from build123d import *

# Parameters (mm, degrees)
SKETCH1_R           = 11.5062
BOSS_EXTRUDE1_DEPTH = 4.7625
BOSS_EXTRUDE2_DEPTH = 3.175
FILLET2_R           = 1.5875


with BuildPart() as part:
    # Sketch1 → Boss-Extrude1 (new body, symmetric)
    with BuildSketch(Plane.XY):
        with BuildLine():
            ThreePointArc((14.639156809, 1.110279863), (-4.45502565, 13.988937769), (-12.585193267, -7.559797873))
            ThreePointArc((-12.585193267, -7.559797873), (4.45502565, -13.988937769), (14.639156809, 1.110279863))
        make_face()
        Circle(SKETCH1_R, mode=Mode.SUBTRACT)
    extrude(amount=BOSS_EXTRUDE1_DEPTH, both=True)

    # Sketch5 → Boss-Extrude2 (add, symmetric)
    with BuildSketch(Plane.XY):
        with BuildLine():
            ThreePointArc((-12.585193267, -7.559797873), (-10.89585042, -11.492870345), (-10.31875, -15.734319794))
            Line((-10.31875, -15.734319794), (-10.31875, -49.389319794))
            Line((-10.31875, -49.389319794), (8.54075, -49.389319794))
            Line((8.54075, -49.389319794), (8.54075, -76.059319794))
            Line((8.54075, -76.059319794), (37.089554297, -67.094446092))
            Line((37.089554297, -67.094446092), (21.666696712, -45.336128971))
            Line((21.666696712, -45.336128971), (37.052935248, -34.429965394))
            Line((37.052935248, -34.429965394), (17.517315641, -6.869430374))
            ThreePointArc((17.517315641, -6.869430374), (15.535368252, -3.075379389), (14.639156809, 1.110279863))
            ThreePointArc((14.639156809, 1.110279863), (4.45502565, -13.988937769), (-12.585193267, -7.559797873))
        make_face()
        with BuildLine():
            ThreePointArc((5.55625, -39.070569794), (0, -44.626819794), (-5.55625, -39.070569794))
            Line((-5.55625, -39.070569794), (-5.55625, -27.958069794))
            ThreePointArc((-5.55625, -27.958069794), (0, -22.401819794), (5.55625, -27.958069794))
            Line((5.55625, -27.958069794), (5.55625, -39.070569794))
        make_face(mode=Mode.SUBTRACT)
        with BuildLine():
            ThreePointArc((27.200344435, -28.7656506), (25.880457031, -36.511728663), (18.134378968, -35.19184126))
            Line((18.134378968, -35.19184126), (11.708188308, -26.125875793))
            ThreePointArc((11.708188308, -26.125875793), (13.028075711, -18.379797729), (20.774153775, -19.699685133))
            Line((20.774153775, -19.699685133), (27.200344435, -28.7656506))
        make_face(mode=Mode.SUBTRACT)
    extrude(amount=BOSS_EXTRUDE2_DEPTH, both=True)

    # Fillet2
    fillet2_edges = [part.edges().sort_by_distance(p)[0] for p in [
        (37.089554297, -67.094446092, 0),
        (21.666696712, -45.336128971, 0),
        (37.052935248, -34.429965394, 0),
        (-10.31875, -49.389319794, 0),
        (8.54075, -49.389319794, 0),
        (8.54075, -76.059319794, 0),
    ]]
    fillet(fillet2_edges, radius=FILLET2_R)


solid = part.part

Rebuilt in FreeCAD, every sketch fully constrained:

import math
import FreeCAD as App
import Part
import Sketcher

V = App.Vector
Q = App.Units.Quantity


def edges_at(feature, points):
    """Names of the edges that pass closest to the given points."""
    edges = feature.Shape.Edges
    near = lambda p: min(range(len(edges)), key=lambda i: edges[i].distToShape(Part.Vertex(*p))[0])
    return sorted({f"Edge{near(p) + 1}" for p in points})

doc = App.newDocument("Part")
body = doc.addObject("PartDesign::Body", "Body")

sketch1 = body.newObject("Sketcher::SketchObject", "Sketch")
sketch1.AttachmentSupport = (doc.getObject("XY_Plane"), [""])
sketch1.MapMode = "FlatFace"
sketch1.addGeometry([
    Part.ArcOfCircle(Part.Circle(V(0, 0, 0), V(0, 0, 1), 14.6812), math.radians(4.337189), math.radians(210.992811)),
    Part.ArcOfCircle(Part.Circle(V(0, 0, 0), V(0, 0, 1), 14.6812), math.radians(-149.007189), math.radians(4.337189)),
    Part.Circle(V(0, 0, 0), V(0, 0, 1), 11.5062),
], False)
sketch1.addConstraint([
    Sketcher.Constraint("Tangent", 0, 1, 1, 2),
    Sketcher.Constraint("Coincident", 1, 1, 0, 2),
    Sketcher.Constraint("Coincident", 0, 3, -1, 1),
    Sketcher.Constraint("Coincident", 2, 3, -1, 1),
    Sketcher.Constraint("Diameter", 2, Q("0.906 in")),
    Sketcher.Constraint("Radius", 0, Q("0.578 in")),
    Sketcher.Constraint("DistanceY", -1, 1, 0, 1, Q("1.11028 mm")),
    Sketcher.Constraint("DistanceX", 1, 1, 0, 1, Q("27.22435 mm")),
])
pad1 = body.newObject("PartDesign::Pad", "Pad")
pad1.Profile = sketch1
pad1.Length = Q("0.375 in")
pad1.Midplane = True

sketch2 = body.newObject("Sketcher::SketchObject", "Sketch001")
sketch2.AttachmentSupport = (doc.getObject("XY_Plane"), [""])
sketch2.MapMode = "FlatFace"
sketch2.addGeometry([
    Part.ArcOfCircle(Part.Circle(V(-26.19375, -15.73432, 0), V(0, 0, 1), 15.875), math.radians(0), math.radians(30.992811)),
    Part.LineSegment(V(-10.31875, -15.73432, 0), V(-10.31875, -49.38932, 0)),
    Part.LineSegment(V(-10.31875, -49.38932, 0), V(8.54075, -49.38932, 0)),
    Part.LineSegment(V(8.54075, -49.38932, 0), V(8.54075, -76.05932, 0)),
    Part.LineSegment(V(8.54075, -76.05932, 0), V(37.089554, -67.094446, 0)),
    Part.LineSegment(V(37.089554, -67.094446, 0), V(21.666697, -45.336129, 0)),
    Part.LineSegment(V(21.666697, -45.336129, 0), V(37.052935, -34.429965, 0)),
    Part.LineSegment(V(37.052935, -34.429965, 0), V(17.517316, -6.86943, 0)),
    Part.ArcOfCircle(Part.Circle(V(30.468695, 2.310842, 0), V(0, 0, 1), 15.875), math.radians(-175.662811), math.radians(-144.67)),
    Part.ArcOfCircle(Part.Circle(V(0, 0, 0), V(0, 0, 1), 14.6812), math.radians(-149.007189), math.radians(4.337189)),
    Part.LineSegment(V(5.55625, -27.95807, 0), V(5.55625, -39.07057, 0)),
    Part.ArcOfCircle(Part.Circle(V(0, -39.07057, 0), V(0, 0, 1), 5.55625), math.radians(180), math.radians(360)),
    Part.LineSegment(V(-5.55625, -39.07057, 0), V(-5.55625, -27.95807, 0)),
    Part.ArcOfCircle(Part.Circle(V(0, -27.95807, 0), V(0, 0, 1), 5.55625), math.radians(0), math.radians(180)),
    Part.LineSegment(V(20.774154, -19.699685, 0), V(27.200344, -28.765651, 0)),
    Part.ArcOfCircle(Part.Circle(V(22.667362, -31.978746, 0), V(0, 0, 1), 5.55625), math.radians(-144.67), math.radians(35.33)),
    Part.LineSegment(V(18.134379, -35.191841, 0), V(11.708188, -26.125876, 0)),
    Part.ArcOfCircle(Part.Circle(V(16.241171, -22.91278, 0), V(0, 0, 1), 5.55625), math.radians(35.33), math.radians(215.33)),
], False)
sketch2.addConstraint([
    Sketcher.Constraint("Tangent", 0, 1, 1, 1),
    Sketcher.Constraint("Coincident", 1, 2, 2, 1),
    Sketcher.Constraint("Coincident", 2, 2, 3, 1),
    Sketcher.Constraint("Coincident", 3, 2, 4, 1),
    Sketcher.Constraint("Coincident", 4, 2, 5, 1),
    Sketcher.Constraint("Coincident", 5, 2, 6, 1),
    Sketcher.Constraint("Coincident", 6, 2, 7, 1),
    Sketcher.Constraint("Tangent", 7, 2, 8, 2),
    Sketcher.Constraint("Tangent", 8, 1, 9, 2),
    Sketcher.Constraint("Tangent", 9, 1, 0, 2),
    Sketcher.Constraint("Tangent", 10, 2, 11, 2),
    Sketcher.Constraint("Tangent", 11, 1, 12, 1),
    Sketcher.Constraint("Tangent", 12, 2, 13, 2),
    Sketcher.Constraint("Tangent", 13, 1, 10, 1),
    Sketcher.Constraint("Tangent", 14, 2, 15, 2),
    Sketcher.Constraint("Tangent", 15, 1, 16, 1),
    Sketcher.Constraint("Tangent", 16, 2, 17, 2),
    Sketcher.Constraint("Tangent", 17, 1, 14, 1),
    Sketcher.Constraint("Vertical", 1),
    Sketcher.Constraint("Horizontal", 2),
    Sketcher.Constraint("Vertical", 3),
    Sketcher.Constraint("Vertical", 10),
    Sketcher.Constraint("Vertical", 12),
    Sketcher.Constraint("Coincident", 9, 3, -1, 1),
    Sketcher.Constraint("Equal", 0, 8),
    Sketcher.Constraint("Equal", 13, 15),
    Sketcher.Constraint("Equal", 15, 17),
    Sketcher.Constraint("PointOnObject", 11, 3, -2),
    Sketcher.Constraint("Perpendicular", 5, 6),
    Sketcher.Constraint("Perpendicular", 6, 7),
    Sketcher.Constraint("Parallel", 7, 14),
    Sketcher.Constraint("Radius", 0, Q("0.625 in")),
    Sketcher.Constraint("Radius", 9, Q("0.578 in")),
    Sketcher.Constraint("Radius", 11, Q("0.21875 in")),
    Sketcher.Constraint("DistanceY", 3, 2, 3, 1, Q("1.05 in")),
    Sketcher.Constraint("Distance", 5, Q("1.05 in")),
    Sketcher.Constraint("Distance", 7, Q("1.33 in")),
    Sketcher.Constraint("DistanceY", 1, 2, 1, 1, Q("1.325 in")),
    Sketcher.Constraint("DistanceY", 10, 2, 10, 1, Q("0.4375 in")),
    Sketcher.Constraint("Angle", 5, Q("125.33 deg")),
    Sketcher.Constraint("Distance", 14, Q("0.4375 in")),
    Sketcher.Constraint("DistanceX", 2, 1, 2, 2, Q("0.7425 in")),
    Sketcher.Constraint("DistanceX", 0, 3, -1, 1, Q("1.03125 in")),
    Sketcher.Constraint("DistanceY", 1, 2, 11, 3, Q("0.40625 in")),
    Sketcher.Constraint("Distance", 6, Q("0.7425 in")),
    Sketcher.Constraint("DistanceY", 4, 2, 15, 3, Q("35.1157 mm")),
    Sketcher.Constraint("DistanceY", 0, 1, 8, 1, Q("16.8446 mm")),
    Sketcher.Constraint("DistanceX", -1, 1, 15, 3, Q("22.667362 mm")),
])
pad2 = body.newObject("PartDesign::Pad", "Pad001")
pad2.Profile = sketch2
pad2.Length = Q("0.25 in")
pad2.Midplane = True
doc.recompute()

fillet = body.newObject("PartDesign::Fillet", "Fillet")
fillet.Base = (pad2, edges_at(pad2, [
    (37.09, -67.094, 0),
    (21.667, -45.336, 0),
    (37.053, -34.43, 0),
    (-10.319, -49.389, 0),
    (8.541, -49.389, 0),
    (8.541, -76.059, 0),
]))
fillet.Radius = Q("0.0625 in")

doc.recompute()
